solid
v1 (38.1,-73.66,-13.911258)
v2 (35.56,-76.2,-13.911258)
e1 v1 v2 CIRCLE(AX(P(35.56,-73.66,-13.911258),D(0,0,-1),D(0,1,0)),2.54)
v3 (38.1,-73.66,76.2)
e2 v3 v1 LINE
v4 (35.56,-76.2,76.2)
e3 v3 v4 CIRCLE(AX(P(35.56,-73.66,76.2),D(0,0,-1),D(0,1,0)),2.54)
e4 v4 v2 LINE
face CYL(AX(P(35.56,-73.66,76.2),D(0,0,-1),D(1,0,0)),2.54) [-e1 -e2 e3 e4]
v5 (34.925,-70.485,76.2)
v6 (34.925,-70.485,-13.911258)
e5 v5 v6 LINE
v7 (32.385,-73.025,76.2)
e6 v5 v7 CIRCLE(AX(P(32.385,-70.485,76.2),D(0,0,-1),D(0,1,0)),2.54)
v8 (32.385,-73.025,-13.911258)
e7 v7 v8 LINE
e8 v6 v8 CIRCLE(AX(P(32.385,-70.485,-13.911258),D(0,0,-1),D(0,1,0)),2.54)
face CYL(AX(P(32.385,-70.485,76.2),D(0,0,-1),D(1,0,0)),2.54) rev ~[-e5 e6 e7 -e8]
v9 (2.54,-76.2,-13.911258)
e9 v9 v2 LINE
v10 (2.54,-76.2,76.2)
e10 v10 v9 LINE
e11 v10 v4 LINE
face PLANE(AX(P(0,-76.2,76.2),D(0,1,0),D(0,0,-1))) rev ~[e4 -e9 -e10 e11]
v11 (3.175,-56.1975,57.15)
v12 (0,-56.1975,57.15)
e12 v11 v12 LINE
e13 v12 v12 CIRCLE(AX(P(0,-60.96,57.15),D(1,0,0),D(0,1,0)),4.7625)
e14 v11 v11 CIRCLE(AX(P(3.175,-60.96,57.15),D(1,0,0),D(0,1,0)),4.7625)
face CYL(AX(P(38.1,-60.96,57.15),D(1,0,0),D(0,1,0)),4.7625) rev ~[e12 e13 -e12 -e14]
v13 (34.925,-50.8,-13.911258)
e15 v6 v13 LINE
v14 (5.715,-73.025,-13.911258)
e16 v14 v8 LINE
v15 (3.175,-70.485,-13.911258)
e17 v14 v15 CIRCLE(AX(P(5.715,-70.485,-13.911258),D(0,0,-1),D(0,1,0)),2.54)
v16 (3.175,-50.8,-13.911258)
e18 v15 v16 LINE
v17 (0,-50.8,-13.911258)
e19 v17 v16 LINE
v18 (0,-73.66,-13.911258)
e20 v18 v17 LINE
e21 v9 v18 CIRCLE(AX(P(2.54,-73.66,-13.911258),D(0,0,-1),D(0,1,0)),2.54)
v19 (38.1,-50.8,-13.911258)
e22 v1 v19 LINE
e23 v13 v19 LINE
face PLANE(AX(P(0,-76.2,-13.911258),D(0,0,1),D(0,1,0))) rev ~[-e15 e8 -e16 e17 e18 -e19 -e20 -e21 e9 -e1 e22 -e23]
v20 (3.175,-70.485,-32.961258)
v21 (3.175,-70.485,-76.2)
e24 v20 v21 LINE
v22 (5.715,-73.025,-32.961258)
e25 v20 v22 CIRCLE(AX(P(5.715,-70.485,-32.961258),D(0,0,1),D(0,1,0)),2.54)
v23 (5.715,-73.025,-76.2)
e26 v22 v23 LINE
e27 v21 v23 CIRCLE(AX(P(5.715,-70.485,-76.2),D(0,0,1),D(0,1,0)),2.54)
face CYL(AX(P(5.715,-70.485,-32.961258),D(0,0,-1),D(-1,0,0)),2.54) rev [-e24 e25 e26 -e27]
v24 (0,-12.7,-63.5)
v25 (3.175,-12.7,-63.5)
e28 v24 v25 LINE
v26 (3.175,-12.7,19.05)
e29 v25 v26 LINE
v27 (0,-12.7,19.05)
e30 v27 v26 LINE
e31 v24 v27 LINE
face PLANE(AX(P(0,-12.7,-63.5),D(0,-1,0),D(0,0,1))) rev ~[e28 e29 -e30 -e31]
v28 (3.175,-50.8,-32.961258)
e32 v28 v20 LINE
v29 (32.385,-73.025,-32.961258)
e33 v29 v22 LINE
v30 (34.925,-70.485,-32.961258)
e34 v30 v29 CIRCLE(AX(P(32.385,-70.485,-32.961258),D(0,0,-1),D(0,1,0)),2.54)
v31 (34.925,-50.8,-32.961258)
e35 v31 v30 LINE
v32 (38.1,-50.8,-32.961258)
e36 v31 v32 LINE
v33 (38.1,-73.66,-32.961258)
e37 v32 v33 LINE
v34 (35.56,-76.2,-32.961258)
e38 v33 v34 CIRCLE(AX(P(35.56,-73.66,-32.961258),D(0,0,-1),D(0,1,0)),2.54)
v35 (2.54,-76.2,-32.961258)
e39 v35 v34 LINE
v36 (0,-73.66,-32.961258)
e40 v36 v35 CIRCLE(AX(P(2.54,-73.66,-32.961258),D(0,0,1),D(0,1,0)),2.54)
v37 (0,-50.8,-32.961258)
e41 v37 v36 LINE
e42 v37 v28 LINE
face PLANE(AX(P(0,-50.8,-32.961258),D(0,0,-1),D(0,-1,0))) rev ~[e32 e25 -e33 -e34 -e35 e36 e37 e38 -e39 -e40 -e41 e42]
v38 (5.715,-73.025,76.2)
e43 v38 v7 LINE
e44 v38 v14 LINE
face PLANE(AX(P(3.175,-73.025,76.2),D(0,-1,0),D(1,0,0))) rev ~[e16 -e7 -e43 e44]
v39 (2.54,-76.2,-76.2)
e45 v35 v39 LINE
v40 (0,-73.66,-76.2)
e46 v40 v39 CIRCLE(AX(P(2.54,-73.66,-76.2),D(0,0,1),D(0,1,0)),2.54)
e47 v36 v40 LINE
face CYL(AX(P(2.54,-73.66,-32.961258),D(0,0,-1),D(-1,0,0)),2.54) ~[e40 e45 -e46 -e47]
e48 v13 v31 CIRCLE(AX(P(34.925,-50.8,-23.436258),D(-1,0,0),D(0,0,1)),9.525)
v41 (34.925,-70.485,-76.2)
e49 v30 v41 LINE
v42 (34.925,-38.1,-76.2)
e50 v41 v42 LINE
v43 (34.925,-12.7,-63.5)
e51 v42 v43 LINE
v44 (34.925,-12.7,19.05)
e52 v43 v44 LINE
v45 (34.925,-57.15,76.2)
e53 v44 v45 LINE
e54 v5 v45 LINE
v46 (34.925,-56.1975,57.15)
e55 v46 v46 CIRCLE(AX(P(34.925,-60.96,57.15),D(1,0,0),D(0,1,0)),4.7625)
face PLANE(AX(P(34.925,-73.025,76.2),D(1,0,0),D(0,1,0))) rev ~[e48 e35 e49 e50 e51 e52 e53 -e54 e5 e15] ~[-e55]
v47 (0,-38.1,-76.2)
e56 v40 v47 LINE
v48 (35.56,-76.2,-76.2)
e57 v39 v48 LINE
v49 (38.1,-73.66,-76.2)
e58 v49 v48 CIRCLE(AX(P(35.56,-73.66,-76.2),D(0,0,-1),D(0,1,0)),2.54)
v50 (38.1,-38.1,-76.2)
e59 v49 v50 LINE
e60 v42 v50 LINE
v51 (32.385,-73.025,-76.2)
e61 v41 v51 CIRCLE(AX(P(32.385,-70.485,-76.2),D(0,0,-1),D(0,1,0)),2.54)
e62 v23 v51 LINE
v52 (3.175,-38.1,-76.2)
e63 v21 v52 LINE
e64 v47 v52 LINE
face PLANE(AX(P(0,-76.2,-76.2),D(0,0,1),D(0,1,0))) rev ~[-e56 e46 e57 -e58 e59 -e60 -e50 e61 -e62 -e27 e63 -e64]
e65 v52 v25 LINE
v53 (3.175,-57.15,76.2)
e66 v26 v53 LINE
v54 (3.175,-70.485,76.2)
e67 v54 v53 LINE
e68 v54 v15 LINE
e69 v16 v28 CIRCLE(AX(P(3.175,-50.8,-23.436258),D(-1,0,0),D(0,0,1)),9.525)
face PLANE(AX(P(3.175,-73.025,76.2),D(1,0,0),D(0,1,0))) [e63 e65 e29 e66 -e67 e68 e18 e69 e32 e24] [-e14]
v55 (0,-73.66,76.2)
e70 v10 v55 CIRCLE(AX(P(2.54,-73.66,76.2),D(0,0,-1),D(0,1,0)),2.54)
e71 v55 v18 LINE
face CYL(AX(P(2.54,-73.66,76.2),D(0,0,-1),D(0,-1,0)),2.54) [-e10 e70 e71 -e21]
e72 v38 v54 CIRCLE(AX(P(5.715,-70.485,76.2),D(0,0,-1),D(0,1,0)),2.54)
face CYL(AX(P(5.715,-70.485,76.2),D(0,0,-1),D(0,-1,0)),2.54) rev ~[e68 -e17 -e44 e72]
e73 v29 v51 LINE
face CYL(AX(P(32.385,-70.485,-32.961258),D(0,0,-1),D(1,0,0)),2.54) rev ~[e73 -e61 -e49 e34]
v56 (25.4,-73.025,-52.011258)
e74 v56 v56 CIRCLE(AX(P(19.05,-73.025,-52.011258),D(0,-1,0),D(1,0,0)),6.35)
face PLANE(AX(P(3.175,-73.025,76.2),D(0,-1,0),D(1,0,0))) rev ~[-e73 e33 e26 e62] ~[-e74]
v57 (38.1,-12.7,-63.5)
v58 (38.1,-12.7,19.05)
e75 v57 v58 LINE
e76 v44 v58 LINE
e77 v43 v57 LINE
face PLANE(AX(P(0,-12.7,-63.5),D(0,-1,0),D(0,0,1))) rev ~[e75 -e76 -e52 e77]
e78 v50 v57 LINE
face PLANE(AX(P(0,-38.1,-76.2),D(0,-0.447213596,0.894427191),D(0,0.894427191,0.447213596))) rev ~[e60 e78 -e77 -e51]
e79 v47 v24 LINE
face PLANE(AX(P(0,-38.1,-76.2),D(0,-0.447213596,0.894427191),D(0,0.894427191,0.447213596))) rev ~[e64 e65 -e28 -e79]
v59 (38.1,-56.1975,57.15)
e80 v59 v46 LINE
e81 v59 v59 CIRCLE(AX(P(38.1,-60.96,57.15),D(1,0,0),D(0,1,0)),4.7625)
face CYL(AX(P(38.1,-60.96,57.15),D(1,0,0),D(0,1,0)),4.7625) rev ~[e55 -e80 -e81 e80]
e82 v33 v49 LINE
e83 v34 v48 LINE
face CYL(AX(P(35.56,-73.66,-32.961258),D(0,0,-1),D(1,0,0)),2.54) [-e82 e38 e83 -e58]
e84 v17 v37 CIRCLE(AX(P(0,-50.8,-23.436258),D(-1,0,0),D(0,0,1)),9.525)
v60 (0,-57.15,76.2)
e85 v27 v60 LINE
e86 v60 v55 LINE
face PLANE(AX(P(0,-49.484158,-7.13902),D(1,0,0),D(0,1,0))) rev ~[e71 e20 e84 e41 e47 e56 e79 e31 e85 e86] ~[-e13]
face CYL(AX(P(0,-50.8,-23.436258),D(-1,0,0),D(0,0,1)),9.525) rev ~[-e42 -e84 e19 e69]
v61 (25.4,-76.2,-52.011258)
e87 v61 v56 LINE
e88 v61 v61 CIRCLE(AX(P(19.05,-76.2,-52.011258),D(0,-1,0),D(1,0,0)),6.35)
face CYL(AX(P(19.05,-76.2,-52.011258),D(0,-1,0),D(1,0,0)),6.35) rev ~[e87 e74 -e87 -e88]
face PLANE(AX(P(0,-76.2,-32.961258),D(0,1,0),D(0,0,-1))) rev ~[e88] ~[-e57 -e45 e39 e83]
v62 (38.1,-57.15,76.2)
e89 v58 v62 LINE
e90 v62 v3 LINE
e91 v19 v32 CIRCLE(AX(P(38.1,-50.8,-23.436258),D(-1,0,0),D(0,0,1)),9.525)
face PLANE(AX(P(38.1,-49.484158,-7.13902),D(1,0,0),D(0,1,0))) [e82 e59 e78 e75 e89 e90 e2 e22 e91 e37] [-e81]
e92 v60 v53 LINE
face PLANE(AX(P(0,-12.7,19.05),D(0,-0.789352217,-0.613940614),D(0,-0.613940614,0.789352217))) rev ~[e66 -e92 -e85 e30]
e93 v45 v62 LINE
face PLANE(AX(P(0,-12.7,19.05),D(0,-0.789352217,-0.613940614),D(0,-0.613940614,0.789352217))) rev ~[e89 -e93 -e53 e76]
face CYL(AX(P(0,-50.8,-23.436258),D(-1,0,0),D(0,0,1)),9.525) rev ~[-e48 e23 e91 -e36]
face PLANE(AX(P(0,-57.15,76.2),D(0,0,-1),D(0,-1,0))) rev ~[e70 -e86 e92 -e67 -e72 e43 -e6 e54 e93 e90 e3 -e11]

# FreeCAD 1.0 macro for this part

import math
import FreeCAD as App
import Part
import Sketcher

V = App.Vector
Q = App.Units.Quantity


def edges_at(feature, points):
    """Names of the edges that pass closest to the given points."""
    edges = feature.Shape.Edges
    near = lambda p: min(range(len(edges)), key=lambda i: edges[i].distToShape(Part.Vertex(*p))[0])
    return sorted({f"Edge{near(p) + 1}" for p in points})


def add_polygon(sketch, points):
    """Adds a closed chain of lines whose ends are joined by coincident constraints."""
    first, n = sketch.GeometryCount, len(points)
    for a, b in zip(points, points[1:] + points[:1]):
        sketch.addGeometry(Part.LineSegment(App.Vector(*a, 0), App.Vector(*b, 0)), False)
    for i in range(n):
        sketch.addConstraint(Sketcher.Constraint("Coincident", first + i, 2, first + (i + 1) % n, 1))

doc = App.newDocument("Part")
body = doc.addObject("PartDesign::Body", "Body")

# Sketch on YZ plane
sketch1 = body.newObject("Sketcher::SketchObject", "Sketch")
sketch1.AttachmentSupport = (doc.getObject("YZ_Plane"), [""])
sketch1.MapMode = "FlatFace"
sketch1.addGeometry([
    Part.LineSegment(V(-57.15, 76.2, 0), V(-76.2, 76.2, 0)),  # 0
    Part.LineSegment(V(-76.2, 76.2, 0), V(-76.2, -13.911258, 0)),  # 1
    Part.LineSegment(V(-76.2, -13.911258, 0), V(-50.8, -13.911258, 0)),  # 2
    Part.ArcOfCircle(Part.Circle(V(-50.8, -23.436258, 0), V(0, 0, 1), 9.525), math.radians(-90), math.radians(90)),  # 3
    Part.LineSegment(V(-50.8, -32.961258, 0), V(-76.2, -32.961258, 0)),  # 4
    Part.LineSegment(V(-76.2, -32.961258, 0), V(-76.2, -76.2, 0)),  # 5
    Part.LineSegment(V(-76.2, -76.2, 0), V(-38.1, -76.2, 0)),  # 6
    Part.LineSegment(V(-38.1, -76.2, 0), V(-12.7, -63.5, 0)),  # 7
    Part.LineSegment(V(-12.7, -63.5, 0), V(-12.7, 19.05, 0)),  # 8
    Part.LineSegment(V(-12.7, 19.05, 0), V(-57.15, 76.2, 0)),  # 9
], False)
sketch1.addConstraint([
    Sketcher.Constraint("Coincident", 0, 2, 1, 1),
    Sketcher.Constraint("Coincident", 1, 2, 2, 1),
    Sketcher.Constraint("Tangent", 2, 2, 3, 2),
    Sketcher.Constraint("Tangent", 3, 1, 4, 1),
    Sketcher.Constraint("Coincident", 4, 2, 5, 1),
    Sketcher.Constraint("Coincident", 5, 2, 6, 1),
    Sketcher.Constraint("Coincident", 6, 2, 7, 1),
    Sketcher.Constraint("Coincident", 7, 2, 8, 1),
    Sketcher.Constraint("Coincident", 8, 2, 9, 1),
    Sketcher.Constraint("Coincident", 9, 2, 0, 1),
    Sketcher.Constraint("Horizontal", 0),
    Sketcher.Constraint("Vertical", 1),
    Sketcher.Constraint("Horizontal", 2),
    Sketcher.Constraint("Horizontal", 4),
    Sketcher.Constraint("Vertical", 5),
    Sketcher.Constraint("Horizontal", 6),
    Sketcher.Constraint("Vertical", 8),
    Sketcher.Constraint("Symmetric", 0, 2, 5, 2, -1),
    Sketcher.Constraint("DistanceX", 2, 1, 2, 2, Q("1 in")),
    Sketcher.Constraint("DistanceX", 6, 1, 6, 2, Q("1.5 in")),
    Sketcher.Constraint("DistanceX", 3, 3, -1, 1, Q("2 in")),
    Sketcher.Constraint("DistanceY", -1, 1, 0, 2, Q("3 in")),
    Sketcher.Constraint("Radius", 3, Q("0.375 in")),
    Sketcher.Constraint("DistanceX", 6, 2, 7, 2, Q("1 in")),
    Sketcher.Constraint("DistanceX", 0, 2, 0, 1, Q("0.75 in")),
    Sketcher.Constraint("DistanceY", 8, 1, 8, 2, Q("3.25 in")),
    Sketcher.Constraint("DistanceY", 7, 2, -1, 1, Q("2.5 in")),
    Sketcher.Constraint("DistanceY", 1, 2, 1, 1, Q("90.111258 mm")),
])
pad1 = body.newObject("PartDesign::Pad", "Pad")
pad1.Profile = sketch1
pad1.Length = Q("1.5 in")

# Sketch on XY plane
sketch2 = body.newObject("Sketcher::SketchObject", "Sketch001")
sketch2.AttachmentSupport = (doc.getObject("XY_Plane"), [""])
sketch2.MapMode = "FlatFace"
sketch2.AttachmentOffset = App.Placement(V(0, 0, 3 * 25.4), App.Rotation())
add_polygon(sketch2, [(3.175, 0), (3.175, -73.025), (34.925, -73.025), (34.925, 0)])  # lines 0-3
sketch2.addConstraint([
    Sketcher.Constraint("Vertical", 0),
    Sketcher.Constraint("Horizontal", 1),
    Sketcher.Constraint("Vertical", 2),
    Sketcher.Constraint("Horizontal", 3),
    Sketcher.Constraint("PointOnObject", 2, 2, -1),
    Sketcher.Constraint("DistanceX", 1, 1, 1, 2, Q("1.25 in")),
    Sketcher.Constraint("DistanceY", 0, 2, 0, 1, Q("2.875 in")),
    Sketcher.Constraint("DistanceX", -1, 1, 0, 2, Q("0.125 in")),
])
pocket1 = body.newObject("PartDesign::Pocket", "Pocket")
pocket1.Profile = sketch2
pocket1.Type = "ThroughAll"
doc.recompute()

fillet = body.newObject("PartDesign::Fillet", "Fillet")
fillet.Base = (pocket1, edges_at(pocket1, [
    (3.175, -73.025, 31.144),
    (34.925, -73.025, 31.144),
    (34.925, -73.025, -54.581),
    (3.175, -73.025, -54.581),
]))
fillet.Radius = Q("0.1 in")
doc.recompute()

fillet2 = body.newObject("PartDesign::Fillet", "Fillet001")
fillet2.Base = (fillet, edges_at(fillet, [
    (38.1, -76.2, -54.581),
    (0, -76.2, -54.581),
    (0, -76.2, 31.144),
    (38.1, -76.2, 31.144),
]))
fillet2.Radius = Q("0.1 in")

# Sketch on XZ plane
sketch3 = body.newObject("Sketcher::SketchObject", "Sketch002")
sketch3.AttachmentSupport = (doc.getObject("XZ_Plane"), [""])
sketch3.MapMode = "FlatFace"
sketch3.AttachmentOffset = App.Placement(V(0, 0, 3 * 25.4), App.Rotation())
sketch3.addGeometry(Part.Circle(V(19.05, -52.011258, 0), V(0, 0, 1), 6.35), False)
sketch3.addConstraint([
    Sketcher.Constraint("Diameter", 0, Q("0.5 in")),
    Sketcher.Constraint("DistanceX", -1, 1, 0, 3, Q("0.75 in")),
    Sketcher.Constraint("DistanceY", 0, 3, -1, 1, Q("52.011258 mm")),
])
pocket2 = body.newObject("PartDesign::Pocket", "Pocket001")
pocket2.Profile = sketch3
pocket2.Length = Q("1 in")

# Sketch on YZ plane
sketch4 = body.newObject("Sketcher::SketchObject", "Sketch003")
sketch4.AttachmentSupport = (doc.getObject("YZ_Plane"), [""])
sketch4.MapMode = "FlatFace"
sketch4.AttachmentOffset = App.Placement(V(0, 0, 1.5 * 25.4), App.Rotation())
sketch4.addGeometry(Part.Circle(V(-60.96, 57.15, 0), V(0, 0, 1), 4.7625), False)
sketch4.addConstraint([
    Sketcher.Constraint("Diameter", 0, Q("0.375 in")),
    Sketcher.Constraint("DistanceX", 0, 3, -1, 1, Q("2.4 in")),
    Sketcher.Constraint("DistanceY", -1, 1, 0, 3, Q("2.25 in")),
])
pocket3 = body.newObject("PartDesign::Pocket", "Pocket002")
pocket3.Profile = sketch4
pocket3.Type = "ThroughAll"

doc.recompute()
